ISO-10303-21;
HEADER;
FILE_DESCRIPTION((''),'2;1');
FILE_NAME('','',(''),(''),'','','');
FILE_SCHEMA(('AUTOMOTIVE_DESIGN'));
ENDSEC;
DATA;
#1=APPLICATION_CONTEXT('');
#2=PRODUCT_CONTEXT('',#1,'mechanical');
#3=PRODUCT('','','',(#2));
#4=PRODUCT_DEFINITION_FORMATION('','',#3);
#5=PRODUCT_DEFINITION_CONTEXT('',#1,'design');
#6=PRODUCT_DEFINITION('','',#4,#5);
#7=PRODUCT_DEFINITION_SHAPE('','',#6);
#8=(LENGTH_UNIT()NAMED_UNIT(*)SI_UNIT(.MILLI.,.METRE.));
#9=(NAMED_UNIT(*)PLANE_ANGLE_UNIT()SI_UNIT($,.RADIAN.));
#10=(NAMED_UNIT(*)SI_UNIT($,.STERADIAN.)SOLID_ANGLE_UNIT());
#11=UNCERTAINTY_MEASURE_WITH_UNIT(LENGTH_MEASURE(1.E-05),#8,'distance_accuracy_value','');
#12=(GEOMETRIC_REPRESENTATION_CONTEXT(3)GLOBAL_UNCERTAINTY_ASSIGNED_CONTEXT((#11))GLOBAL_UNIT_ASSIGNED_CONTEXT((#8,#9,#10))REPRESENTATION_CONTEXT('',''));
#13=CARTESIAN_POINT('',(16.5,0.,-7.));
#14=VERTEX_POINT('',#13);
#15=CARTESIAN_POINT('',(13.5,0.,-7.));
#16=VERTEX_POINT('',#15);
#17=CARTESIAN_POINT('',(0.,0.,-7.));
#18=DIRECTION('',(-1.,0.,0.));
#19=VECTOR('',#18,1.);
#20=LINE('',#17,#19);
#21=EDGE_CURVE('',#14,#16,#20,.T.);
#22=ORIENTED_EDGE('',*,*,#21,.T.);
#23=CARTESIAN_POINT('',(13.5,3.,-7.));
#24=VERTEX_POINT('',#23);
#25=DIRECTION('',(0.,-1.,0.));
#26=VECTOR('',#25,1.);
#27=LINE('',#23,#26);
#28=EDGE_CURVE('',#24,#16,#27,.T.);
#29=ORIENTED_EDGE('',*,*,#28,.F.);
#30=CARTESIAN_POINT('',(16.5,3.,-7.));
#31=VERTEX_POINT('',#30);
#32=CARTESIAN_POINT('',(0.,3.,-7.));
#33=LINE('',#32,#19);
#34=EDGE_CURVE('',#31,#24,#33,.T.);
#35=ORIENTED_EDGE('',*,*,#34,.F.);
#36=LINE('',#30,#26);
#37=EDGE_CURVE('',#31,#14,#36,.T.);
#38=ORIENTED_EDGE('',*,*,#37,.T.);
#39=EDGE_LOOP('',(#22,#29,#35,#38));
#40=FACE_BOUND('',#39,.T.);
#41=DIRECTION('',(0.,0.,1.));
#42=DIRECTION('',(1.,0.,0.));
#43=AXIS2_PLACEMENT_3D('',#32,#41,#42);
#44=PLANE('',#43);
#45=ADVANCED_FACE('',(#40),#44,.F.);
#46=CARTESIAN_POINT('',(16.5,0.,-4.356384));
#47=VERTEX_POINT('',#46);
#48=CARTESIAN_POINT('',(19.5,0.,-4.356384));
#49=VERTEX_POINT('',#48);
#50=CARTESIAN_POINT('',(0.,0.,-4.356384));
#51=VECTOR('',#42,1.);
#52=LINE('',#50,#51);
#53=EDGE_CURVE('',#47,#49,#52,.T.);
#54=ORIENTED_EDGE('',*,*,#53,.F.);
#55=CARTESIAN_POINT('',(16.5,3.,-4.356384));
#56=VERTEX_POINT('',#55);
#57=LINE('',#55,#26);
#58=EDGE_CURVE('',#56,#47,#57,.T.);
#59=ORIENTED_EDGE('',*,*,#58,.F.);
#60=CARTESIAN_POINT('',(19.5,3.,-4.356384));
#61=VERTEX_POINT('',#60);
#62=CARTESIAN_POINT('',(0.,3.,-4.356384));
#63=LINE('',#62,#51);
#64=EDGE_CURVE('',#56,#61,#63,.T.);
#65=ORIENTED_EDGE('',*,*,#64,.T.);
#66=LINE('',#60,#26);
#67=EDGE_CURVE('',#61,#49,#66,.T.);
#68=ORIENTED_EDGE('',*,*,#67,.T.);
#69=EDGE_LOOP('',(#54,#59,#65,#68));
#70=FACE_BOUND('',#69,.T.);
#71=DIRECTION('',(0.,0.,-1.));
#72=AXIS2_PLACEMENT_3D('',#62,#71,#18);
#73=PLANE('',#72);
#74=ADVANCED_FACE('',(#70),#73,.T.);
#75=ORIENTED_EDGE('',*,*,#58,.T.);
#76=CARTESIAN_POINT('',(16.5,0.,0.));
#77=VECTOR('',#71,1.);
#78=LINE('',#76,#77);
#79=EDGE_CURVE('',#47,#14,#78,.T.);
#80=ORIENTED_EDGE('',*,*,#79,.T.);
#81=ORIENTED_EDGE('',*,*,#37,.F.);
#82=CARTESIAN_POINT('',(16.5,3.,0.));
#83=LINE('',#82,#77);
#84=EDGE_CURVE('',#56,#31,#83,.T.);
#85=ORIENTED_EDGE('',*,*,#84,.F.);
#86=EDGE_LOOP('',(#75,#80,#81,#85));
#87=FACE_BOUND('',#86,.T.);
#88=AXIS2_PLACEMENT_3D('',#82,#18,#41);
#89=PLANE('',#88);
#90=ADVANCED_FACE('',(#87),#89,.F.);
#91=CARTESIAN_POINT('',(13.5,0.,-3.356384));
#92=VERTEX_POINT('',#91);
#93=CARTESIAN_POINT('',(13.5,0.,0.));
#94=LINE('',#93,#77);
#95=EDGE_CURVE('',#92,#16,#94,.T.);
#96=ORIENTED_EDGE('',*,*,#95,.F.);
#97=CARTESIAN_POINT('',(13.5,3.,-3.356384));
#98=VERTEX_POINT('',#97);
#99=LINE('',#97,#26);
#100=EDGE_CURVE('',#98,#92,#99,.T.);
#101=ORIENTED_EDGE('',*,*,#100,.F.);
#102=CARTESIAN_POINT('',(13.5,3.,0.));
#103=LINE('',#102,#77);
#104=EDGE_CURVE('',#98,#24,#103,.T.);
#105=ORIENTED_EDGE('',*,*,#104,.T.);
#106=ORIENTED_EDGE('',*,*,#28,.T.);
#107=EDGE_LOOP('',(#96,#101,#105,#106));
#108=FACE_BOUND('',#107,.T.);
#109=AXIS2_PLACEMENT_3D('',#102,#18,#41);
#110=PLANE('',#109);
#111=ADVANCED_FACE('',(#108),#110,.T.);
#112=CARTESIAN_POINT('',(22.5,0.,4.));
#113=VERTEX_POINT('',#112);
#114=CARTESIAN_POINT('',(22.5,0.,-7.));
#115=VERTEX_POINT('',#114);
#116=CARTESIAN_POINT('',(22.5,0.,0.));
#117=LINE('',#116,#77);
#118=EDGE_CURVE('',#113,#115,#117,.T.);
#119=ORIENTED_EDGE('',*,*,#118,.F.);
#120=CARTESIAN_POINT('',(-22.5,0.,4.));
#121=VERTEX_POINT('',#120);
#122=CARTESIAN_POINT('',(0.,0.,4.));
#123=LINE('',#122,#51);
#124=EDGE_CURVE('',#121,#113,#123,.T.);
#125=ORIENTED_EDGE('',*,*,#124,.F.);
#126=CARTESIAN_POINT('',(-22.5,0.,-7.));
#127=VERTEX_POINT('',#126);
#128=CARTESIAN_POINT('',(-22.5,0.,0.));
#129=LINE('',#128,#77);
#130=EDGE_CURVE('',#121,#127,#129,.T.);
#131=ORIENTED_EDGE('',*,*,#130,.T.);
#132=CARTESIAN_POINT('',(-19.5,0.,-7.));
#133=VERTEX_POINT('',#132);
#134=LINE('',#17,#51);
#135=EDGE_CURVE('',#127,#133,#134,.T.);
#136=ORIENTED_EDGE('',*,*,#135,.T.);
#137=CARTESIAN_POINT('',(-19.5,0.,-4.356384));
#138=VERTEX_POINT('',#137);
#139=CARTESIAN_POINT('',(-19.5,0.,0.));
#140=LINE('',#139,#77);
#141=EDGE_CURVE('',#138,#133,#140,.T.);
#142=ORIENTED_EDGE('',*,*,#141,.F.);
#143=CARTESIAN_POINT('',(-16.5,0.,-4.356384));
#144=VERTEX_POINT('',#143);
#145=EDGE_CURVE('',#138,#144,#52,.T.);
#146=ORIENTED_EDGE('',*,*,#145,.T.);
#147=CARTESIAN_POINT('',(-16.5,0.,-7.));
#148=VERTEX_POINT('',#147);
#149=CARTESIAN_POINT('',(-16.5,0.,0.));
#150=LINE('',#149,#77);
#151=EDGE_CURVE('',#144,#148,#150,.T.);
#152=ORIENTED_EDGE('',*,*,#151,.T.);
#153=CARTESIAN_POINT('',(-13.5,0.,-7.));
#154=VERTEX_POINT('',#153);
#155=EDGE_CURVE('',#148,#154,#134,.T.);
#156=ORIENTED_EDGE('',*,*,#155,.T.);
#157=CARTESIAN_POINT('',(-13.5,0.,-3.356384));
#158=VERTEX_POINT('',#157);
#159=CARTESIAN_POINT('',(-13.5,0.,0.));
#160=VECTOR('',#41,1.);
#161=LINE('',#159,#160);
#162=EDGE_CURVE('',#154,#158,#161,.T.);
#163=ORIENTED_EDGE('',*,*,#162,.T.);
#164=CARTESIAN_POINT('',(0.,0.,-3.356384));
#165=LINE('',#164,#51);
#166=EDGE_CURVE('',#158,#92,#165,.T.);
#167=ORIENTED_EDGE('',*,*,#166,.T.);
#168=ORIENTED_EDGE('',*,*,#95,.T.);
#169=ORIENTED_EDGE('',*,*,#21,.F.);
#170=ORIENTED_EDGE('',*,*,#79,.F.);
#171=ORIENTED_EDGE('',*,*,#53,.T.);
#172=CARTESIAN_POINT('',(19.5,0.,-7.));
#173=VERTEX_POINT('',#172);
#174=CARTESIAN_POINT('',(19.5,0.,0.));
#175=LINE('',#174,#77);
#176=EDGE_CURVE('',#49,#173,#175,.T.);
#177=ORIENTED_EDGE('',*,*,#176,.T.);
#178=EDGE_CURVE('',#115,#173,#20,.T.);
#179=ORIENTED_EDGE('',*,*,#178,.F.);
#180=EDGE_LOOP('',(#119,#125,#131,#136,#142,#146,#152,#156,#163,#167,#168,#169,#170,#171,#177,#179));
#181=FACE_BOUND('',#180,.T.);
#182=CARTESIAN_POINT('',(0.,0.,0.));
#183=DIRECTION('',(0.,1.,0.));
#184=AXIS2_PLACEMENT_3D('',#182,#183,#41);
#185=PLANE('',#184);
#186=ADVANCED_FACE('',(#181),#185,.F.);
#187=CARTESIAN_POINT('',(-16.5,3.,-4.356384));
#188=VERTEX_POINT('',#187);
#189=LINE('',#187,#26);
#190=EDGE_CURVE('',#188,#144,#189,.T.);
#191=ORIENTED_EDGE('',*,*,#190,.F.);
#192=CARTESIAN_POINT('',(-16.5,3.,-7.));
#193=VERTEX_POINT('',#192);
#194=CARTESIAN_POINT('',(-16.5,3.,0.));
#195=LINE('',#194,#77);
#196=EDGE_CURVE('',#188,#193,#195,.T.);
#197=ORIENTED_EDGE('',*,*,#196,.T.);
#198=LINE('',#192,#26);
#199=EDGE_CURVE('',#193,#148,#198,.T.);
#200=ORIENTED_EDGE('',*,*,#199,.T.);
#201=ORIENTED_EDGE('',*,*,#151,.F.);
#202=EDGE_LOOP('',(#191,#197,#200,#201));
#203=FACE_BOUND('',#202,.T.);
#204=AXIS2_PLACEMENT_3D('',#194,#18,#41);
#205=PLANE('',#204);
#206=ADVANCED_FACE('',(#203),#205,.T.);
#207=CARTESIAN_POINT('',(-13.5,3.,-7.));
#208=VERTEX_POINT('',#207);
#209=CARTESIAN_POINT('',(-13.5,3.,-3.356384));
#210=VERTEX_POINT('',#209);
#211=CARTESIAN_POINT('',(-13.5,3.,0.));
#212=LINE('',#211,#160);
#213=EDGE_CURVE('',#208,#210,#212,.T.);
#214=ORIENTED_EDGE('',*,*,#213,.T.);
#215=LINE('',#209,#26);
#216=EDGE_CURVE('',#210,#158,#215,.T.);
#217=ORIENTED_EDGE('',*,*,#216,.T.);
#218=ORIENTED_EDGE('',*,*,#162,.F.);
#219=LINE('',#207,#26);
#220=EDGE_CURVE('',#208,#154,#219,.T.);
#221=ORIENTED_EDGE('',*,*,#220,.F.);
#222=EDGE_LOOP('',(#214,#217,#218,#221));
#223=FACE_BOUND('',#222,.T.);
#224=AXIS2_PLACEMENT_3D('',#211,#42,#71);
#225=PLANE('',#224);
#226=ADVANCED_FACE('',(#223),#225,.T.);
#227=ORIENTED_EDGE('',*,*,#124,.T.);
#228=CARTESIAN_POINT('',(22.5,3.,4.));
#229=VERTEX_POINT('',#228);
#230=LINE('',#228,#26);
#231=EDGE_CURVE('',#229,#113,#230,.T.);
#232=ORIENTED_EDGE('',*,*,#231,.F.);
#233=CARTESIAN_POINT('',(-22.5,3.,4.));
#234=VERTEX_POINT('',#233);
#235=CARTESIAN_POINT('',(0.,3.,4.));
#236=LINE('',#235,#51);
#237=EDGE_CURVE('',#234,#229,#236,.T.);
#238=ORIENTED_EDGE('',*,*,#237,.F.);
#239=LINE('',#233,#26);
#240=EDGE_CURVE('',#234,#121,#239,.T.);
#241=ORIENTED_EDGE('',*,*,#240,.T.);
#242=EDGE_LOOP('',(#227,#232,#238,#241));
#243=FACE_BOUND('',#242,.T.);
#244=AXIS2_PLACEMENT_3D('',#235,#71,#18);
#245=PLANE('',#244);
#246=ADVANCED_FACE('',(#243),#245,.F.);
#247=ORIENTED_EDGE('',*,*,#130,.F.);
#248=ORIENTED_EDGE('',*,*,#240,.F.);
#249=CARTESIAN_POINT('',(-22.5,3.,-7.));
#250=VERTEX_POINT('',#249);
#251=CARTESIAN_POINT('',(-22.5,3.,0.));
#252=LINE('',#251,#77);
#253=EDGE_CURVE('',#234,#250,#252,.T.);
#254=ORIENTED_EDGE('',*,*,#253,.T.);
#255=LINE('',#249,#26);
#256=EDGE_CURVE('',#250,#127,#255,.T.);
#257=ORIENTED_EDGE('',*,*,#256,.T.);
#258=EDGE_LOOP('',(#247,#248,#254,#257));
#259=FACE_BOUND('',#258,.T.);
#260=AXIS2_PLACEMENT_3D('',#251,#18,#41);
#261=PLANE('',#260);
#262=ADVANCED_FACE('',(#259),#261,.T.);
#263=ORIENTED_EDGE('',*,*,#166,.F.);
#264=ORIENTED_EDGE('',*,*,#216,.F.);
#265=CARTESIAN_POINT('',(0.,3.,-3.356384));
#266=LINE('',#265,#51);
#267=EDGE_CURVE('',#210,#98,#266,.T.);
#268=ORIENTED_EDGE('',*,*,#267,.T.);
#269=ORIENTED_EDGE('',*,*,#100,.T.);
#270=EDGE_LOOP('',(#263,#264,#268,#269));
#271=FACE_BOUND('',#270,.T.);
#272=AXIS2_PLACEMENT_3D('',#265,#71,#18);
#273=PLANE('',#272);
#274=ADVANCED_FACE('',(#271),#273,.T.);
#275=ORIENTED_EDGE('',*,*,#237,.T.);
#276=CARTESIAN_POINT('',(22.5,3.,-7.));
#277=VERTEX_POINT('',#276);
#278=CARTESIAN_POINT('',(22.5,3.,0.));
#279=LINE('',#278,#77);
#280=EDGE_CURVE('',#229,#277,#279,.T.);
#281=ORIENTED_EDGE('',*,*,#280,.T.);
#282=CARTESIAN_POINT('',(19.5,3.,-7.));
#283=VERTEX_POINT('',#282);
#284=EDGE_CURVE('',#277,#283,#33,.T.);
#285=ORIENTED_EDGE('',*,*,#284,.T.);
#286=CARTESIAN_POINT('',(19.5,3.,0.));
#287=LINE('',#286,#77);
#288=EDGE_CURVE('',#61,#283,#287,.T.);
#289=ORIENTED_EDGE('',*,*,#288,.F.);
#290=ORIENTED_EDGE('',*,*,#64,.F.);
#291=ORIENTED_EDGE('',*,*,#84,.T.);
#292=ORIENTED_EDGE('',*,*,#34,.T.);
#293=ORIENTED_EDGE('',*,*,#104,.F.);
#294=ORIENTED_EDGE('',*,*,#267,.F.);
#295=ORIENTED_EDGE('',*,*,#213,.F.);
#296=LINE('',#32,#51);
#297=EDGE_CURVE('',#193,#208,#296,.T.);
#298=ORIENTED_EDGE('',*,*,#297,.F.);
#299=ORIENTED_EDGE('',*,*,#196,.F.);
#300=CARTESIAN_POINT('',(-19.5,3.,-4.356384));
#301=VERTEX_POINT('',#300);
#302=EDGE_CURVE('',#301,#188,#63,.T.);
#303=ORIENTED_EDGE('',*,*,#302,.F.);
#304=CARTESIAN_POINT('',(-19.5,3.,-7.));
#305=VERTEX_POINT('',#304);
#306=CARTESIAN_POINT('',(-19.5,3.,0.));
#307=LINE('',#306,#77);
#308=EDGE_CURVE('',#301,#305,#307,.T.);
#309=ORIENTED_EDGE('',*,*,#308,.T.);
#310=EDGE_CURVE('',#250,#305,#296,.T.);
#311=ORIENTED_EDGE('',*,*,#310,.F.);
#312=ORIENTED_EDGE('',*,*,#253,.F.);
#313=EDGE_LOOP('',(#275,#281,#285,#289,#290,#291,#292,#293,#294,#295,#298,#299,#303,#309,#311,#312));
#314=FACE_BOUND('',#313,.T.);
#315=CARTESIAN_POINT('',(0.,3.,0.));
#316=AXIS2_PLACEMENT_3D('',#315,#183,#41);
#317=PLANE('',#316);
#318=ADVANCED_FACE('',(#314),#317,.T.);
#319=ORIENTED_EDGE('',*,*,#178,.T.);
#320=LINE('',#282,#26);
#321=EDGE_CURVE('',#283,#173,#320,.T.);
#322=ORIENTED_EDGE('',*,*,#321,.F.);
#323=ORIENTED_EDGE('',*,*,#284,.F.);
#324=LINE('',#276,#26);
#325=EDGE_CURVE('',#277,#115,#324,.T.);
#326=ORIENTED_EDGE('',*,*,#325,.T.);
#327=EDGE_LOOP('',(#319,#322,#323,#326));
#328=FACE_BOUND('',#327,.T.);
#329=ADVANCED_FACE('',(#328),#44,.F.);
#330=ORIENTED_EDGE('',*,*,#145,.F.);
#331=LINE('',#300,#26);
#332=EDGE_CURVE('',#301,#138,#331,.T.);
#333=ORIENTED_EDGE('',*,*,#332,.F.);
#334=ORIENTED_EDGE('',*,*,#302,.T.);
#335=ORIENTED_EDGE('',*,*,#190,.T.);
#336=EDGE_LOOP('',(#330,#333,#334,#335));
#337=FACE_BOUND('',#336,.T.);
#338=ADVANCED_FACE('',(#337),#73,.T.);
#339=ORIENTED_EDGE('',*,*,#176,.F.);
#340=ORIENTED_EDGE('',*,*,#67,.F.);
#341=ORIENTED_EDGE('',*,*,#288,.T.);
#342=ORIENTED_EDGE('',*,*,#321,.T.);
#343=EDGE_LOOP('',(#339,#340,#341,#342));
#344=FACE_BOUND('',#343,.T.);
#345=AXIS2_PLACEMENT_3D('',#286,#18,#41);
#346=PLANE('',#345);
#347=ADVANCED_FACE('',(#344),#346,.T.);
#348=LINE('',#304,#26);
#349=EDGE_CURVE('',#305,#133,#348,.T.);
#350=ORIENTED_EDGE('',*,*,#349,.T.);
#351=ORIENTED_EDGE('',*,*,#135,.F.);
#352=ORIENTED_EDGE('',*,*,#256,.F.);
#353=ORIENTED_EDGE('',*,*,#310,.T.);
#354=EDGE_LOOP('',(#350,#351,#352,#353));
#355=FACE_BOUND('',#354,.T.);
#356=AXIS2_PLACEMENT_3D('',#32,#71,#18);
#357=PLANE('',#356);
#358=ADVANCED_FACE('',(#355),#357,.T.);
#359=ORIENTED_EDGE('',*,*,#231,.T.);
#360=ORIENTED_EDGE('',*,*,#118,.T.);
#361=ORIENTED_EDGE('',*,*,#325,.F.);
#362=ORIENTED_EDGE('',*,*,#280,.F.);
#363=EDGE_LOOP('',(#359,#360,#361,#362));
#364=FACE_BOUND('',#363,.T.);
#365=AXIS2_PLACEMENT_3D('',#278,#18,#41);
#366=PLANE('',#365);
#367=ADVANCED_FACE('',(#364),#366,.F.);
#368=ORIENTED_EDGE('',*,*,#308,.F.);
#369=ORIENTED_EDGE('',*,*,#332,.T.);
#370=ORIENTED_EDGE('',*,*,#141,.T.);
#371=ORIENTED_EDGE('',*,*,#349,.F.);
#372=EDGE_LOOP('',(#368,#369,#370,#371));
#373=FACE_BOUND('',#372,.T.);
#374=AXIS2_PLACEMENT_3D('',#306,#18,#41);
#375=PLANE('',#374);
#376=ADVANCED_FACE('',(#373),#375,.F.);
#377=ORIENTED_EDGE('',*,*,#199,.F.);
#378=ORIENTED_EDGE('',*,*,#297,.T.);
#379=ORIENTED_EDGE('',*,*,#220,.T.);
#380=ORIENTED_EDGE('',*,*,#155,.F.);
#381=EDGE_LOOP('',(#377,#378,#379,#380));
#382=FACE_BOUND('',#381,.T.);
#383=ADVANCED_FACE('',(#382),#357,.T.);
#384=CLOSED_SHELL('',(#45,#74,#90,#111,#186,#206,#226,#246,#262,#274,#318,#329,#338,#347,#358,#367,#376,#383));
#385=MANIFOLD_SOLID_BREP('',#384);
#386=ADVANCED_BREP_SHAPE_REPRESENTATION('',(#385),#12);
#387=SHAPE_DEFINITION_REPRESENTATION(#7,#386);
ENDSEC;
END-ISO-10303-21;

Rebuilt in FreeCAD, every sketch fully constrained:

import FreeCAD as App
import Part
import Sketcher
Q = App.Units.Quantity

doc = App.newDocument("Part")
body = doc.addObject("PartDesign::Body", "Body")

# Sketch on XZ plane
sketch1 = body.newObject("Sketcher::SketchObject", "Sketch")
sketch1.AttachmentSupport = (doc.getObject("XZ_Plane"), [""])
sketch1.MapMode = "FlatFace"
sketch1.addGeometry(Part.LineSegment(App.Vector(13.5, -7, 0), App.Vector(13.5, -3.4, 0)), False)
sketch1.addGeometry(Part.LineSegment(App.Vector(13.5, -3.4, 0), App.Vector(-13.5, -3.4, 0)), False)
sketch1.addGeometry(Part.LineSegment(App.Vector(-13.5, -3.4, 0), App.Vector(-13.5, -7, 0)), False)
sketch1.addGeometry(Part.LineSegment(App.Vector(-13.5, -7, 0), App.Vector(-16.5, -7, 0)), False)
sketch1.addGeometry(Part.LineSegment(App.Vector(-16.5, -7, 0), App.Vector(-16.5, -4.4, 0)), False)
sketch1.addGeometry(Part.LineSegment(App.Vector(-16.5, -4.4, 0), App.Vector(-19.5, -4.4, 0)), False)
sketch1.addGeometry(Part.LineSegment(App.Vector(-19.5, -4.4, 0), App.Vector(-19.5, -7, 0)), False)
sketch1.addGeometry(Part.LineSegment(App.Vector(-19.5, -7, 0), App.Vector(-22.5, -7, 0)), False)
sketch1.addGeometry(Part.LineSegment(App.Vector(-22.5, -7, 0), App.Vector(-22.5, 4, 0)), False)
sketch1.addGeometry(Part.LineSegment(App.Vector(-22.5, 4, 0), App.Vector(22.5, 4, 0)), False)
sketch1.addGeometry(Part.LineSegment(App.Vector(22.5, 4, 0), App.Vector(22.5, -7, 0)), False)
sketch1.addGeometry(Part.LineSegment(App.Vector(22.5, -7, 0), App.Vector(19.5, -7, 0)), False)
sketch1.addGeometry(Part.LineSegment(App.Vector(19.5, -7, 0), App.Vector(19.5, -4.4, 0)), False)
sketch1.addGeometry(Part.LineSegment(App.Vector(19.5, -4.4, 0), App.Vector(16.5, -4.4, 0)), False)
sketch1.addGeometry(Part.LineSegment(App.Vector(16.5, -4.4, 0), App.Vector(16.5, -7, 0)), False)
sketch1.addGeometry(Part.LineSegment(App.Vector(16.5, -7, 0), App.Vector(13.5, -7, 0)), False)
sketch1.addConstraint(Sketcher.Constraint("Coincident", 0, 2, 1, 1))
sketch1.addConstraint(Sketcher.Constraint("Coincident", 1, 2, 2, 1))
sketch1.addConstraint(Sketcher.Constraint("Coincident", 2, 2, 3, 1))
sketch1.addConstraint(Sketcher.Constraint("Coincident", 3, 2, 4, 1))
sketch1.addConstraint(Sketcher.Constraint("Coincident", 4, 2, 5, 1))
sketch1.addConstraint(Sketcher.Constraint("Coincident", 5, 2, 6, 1))
sketch1.addConstraint(Sketcher.Constraint("Coincident", 6, 2, 7, 1))
sketch1.addConstraint(Sketcher.Constraint("Coincident", 7, 2, 8, 1))
sketch1.addConstraint(Sketcher.Constraint("Coincident", 8, 2, 9, 1))
sketch1.addConstraint(Sketcher.Constraint("Coincident", 9, 2, 10, 1))
sketch1.addConstraint(Sketcher.Constraint("Coincident", 10, 2, 11, 1))
sketch1.addConstraint(Sketcher.Constraint("Coincident", 11, 2, 12, 1))
sketch1.addConstraint(Sketcher.Constraint("Coincident", 12, 2, 13, 1))
sketch1.addConstraint(Sketcher.Constraint("Coincident", 13, 2, 14, 1))
sketch1.addConstraint(Sketcher.Constraint("Coincident", 14, 2, 15, 1))
sketch1.addConstraint(Sketcher.Constraint("Coincident", 15, 2, 0, 1))
sketch1.addConstraint(Sketcher.Constraint("Vertical", 0))
sketch1.addConstraint(Sketcher.Constraint("Horizontal", 1))
sketch1.addConstraint(Sketcher.Constraint("Vertical", 2))
sketch1.addConstraint(Sketcher.Constraint("Horizontal", 3))
sketch1.addConstraint(Sketcher.Constraint("Vertical", 4))
sketch1.addConstraint(Sketcher.Constraint("Horizontal", 5))
sketch1.addConstraint(Sketcher.Constraint("Vertical", 6))
sketch1.addConstraint(Sketcher.Constraint("Horizontal", 7))
sketch1.addConstraint(Sketcher.Constraint("Vertical", 8))
sketch1.addConstraint(Sketcher.Constraint("Horizontal", 9))
sketch1.addConstraint(Sketcher.Constraint("Vertical", 10))
sketch1.addConstraint(Sketcher.Constraint("Horizontal", 11))
sketch1.addConstraint(Sketcher.Constraint("Vertical", 12))
sketch1.addConstraint(Sketcher.Constraint("Horizontal", 13))
sketch1.addConstraint(Sketcher.Constraint("Vertical", 14))
sketch1.addConstraint(Sketcher.Constraint("Horizontal", 15))
sketch1.addConstraint(Sketcher.Constraint("Symmetric", 7, 2, 10, 2, -2))
sketch1.addConstraint(Sketcher.Constraint("Symmetric", 5, 2, 12, 2, -2))
sketch1.addConstraint(Sketcher.Constraint("Symmetric", 3, 2, 14, 2, -2))
sketch1.addConstraint(Sketcher.Constraint("Horizontal", 3, 2, 6, 2))
sketch1.addConstraint(Sketcher.Constraint("Equal", 3, 5))
sketch1.addConstraint(Sketcher.Constraint("Equal", 5, 7))
sketch1.addConstraint(Sketcher.Constraint("Equal", 13, 15))
sketch1.addConstraint(Sketcher.Constraint("DistanceX", 1, 2, 1, 1, Q("27 mm")))
sketch1.addConstraint(Sketcher.Constraint("DistanceX", 3, 2, 3, 1, Q("3 mm")))
sketch1.addConstraint(Sketcher.Constraint("DistanceY", 8, 1, 8, 2, Q("11 mm")))
sketch1.addConstraint(Sketcher.Constraint("DistanceY", 2, 2, -1, 1, Q("7 mm")))
sketch1.addConstraint(Sketcher.Constraint("DistanceY", 4, 2, 1, 2, Q("1 mm")))
sketch1.addConstraint(Sketcher.Constraint("DistanceY", 0, 1, 0, 2, Q("3.643616 mm")))
pad1 = body.newObject("PartDesign::Pad", "Pad")
pad1.Profile = sketch1
pad1.Length = 3
pad1.Reversed = True

doc.recompute()
